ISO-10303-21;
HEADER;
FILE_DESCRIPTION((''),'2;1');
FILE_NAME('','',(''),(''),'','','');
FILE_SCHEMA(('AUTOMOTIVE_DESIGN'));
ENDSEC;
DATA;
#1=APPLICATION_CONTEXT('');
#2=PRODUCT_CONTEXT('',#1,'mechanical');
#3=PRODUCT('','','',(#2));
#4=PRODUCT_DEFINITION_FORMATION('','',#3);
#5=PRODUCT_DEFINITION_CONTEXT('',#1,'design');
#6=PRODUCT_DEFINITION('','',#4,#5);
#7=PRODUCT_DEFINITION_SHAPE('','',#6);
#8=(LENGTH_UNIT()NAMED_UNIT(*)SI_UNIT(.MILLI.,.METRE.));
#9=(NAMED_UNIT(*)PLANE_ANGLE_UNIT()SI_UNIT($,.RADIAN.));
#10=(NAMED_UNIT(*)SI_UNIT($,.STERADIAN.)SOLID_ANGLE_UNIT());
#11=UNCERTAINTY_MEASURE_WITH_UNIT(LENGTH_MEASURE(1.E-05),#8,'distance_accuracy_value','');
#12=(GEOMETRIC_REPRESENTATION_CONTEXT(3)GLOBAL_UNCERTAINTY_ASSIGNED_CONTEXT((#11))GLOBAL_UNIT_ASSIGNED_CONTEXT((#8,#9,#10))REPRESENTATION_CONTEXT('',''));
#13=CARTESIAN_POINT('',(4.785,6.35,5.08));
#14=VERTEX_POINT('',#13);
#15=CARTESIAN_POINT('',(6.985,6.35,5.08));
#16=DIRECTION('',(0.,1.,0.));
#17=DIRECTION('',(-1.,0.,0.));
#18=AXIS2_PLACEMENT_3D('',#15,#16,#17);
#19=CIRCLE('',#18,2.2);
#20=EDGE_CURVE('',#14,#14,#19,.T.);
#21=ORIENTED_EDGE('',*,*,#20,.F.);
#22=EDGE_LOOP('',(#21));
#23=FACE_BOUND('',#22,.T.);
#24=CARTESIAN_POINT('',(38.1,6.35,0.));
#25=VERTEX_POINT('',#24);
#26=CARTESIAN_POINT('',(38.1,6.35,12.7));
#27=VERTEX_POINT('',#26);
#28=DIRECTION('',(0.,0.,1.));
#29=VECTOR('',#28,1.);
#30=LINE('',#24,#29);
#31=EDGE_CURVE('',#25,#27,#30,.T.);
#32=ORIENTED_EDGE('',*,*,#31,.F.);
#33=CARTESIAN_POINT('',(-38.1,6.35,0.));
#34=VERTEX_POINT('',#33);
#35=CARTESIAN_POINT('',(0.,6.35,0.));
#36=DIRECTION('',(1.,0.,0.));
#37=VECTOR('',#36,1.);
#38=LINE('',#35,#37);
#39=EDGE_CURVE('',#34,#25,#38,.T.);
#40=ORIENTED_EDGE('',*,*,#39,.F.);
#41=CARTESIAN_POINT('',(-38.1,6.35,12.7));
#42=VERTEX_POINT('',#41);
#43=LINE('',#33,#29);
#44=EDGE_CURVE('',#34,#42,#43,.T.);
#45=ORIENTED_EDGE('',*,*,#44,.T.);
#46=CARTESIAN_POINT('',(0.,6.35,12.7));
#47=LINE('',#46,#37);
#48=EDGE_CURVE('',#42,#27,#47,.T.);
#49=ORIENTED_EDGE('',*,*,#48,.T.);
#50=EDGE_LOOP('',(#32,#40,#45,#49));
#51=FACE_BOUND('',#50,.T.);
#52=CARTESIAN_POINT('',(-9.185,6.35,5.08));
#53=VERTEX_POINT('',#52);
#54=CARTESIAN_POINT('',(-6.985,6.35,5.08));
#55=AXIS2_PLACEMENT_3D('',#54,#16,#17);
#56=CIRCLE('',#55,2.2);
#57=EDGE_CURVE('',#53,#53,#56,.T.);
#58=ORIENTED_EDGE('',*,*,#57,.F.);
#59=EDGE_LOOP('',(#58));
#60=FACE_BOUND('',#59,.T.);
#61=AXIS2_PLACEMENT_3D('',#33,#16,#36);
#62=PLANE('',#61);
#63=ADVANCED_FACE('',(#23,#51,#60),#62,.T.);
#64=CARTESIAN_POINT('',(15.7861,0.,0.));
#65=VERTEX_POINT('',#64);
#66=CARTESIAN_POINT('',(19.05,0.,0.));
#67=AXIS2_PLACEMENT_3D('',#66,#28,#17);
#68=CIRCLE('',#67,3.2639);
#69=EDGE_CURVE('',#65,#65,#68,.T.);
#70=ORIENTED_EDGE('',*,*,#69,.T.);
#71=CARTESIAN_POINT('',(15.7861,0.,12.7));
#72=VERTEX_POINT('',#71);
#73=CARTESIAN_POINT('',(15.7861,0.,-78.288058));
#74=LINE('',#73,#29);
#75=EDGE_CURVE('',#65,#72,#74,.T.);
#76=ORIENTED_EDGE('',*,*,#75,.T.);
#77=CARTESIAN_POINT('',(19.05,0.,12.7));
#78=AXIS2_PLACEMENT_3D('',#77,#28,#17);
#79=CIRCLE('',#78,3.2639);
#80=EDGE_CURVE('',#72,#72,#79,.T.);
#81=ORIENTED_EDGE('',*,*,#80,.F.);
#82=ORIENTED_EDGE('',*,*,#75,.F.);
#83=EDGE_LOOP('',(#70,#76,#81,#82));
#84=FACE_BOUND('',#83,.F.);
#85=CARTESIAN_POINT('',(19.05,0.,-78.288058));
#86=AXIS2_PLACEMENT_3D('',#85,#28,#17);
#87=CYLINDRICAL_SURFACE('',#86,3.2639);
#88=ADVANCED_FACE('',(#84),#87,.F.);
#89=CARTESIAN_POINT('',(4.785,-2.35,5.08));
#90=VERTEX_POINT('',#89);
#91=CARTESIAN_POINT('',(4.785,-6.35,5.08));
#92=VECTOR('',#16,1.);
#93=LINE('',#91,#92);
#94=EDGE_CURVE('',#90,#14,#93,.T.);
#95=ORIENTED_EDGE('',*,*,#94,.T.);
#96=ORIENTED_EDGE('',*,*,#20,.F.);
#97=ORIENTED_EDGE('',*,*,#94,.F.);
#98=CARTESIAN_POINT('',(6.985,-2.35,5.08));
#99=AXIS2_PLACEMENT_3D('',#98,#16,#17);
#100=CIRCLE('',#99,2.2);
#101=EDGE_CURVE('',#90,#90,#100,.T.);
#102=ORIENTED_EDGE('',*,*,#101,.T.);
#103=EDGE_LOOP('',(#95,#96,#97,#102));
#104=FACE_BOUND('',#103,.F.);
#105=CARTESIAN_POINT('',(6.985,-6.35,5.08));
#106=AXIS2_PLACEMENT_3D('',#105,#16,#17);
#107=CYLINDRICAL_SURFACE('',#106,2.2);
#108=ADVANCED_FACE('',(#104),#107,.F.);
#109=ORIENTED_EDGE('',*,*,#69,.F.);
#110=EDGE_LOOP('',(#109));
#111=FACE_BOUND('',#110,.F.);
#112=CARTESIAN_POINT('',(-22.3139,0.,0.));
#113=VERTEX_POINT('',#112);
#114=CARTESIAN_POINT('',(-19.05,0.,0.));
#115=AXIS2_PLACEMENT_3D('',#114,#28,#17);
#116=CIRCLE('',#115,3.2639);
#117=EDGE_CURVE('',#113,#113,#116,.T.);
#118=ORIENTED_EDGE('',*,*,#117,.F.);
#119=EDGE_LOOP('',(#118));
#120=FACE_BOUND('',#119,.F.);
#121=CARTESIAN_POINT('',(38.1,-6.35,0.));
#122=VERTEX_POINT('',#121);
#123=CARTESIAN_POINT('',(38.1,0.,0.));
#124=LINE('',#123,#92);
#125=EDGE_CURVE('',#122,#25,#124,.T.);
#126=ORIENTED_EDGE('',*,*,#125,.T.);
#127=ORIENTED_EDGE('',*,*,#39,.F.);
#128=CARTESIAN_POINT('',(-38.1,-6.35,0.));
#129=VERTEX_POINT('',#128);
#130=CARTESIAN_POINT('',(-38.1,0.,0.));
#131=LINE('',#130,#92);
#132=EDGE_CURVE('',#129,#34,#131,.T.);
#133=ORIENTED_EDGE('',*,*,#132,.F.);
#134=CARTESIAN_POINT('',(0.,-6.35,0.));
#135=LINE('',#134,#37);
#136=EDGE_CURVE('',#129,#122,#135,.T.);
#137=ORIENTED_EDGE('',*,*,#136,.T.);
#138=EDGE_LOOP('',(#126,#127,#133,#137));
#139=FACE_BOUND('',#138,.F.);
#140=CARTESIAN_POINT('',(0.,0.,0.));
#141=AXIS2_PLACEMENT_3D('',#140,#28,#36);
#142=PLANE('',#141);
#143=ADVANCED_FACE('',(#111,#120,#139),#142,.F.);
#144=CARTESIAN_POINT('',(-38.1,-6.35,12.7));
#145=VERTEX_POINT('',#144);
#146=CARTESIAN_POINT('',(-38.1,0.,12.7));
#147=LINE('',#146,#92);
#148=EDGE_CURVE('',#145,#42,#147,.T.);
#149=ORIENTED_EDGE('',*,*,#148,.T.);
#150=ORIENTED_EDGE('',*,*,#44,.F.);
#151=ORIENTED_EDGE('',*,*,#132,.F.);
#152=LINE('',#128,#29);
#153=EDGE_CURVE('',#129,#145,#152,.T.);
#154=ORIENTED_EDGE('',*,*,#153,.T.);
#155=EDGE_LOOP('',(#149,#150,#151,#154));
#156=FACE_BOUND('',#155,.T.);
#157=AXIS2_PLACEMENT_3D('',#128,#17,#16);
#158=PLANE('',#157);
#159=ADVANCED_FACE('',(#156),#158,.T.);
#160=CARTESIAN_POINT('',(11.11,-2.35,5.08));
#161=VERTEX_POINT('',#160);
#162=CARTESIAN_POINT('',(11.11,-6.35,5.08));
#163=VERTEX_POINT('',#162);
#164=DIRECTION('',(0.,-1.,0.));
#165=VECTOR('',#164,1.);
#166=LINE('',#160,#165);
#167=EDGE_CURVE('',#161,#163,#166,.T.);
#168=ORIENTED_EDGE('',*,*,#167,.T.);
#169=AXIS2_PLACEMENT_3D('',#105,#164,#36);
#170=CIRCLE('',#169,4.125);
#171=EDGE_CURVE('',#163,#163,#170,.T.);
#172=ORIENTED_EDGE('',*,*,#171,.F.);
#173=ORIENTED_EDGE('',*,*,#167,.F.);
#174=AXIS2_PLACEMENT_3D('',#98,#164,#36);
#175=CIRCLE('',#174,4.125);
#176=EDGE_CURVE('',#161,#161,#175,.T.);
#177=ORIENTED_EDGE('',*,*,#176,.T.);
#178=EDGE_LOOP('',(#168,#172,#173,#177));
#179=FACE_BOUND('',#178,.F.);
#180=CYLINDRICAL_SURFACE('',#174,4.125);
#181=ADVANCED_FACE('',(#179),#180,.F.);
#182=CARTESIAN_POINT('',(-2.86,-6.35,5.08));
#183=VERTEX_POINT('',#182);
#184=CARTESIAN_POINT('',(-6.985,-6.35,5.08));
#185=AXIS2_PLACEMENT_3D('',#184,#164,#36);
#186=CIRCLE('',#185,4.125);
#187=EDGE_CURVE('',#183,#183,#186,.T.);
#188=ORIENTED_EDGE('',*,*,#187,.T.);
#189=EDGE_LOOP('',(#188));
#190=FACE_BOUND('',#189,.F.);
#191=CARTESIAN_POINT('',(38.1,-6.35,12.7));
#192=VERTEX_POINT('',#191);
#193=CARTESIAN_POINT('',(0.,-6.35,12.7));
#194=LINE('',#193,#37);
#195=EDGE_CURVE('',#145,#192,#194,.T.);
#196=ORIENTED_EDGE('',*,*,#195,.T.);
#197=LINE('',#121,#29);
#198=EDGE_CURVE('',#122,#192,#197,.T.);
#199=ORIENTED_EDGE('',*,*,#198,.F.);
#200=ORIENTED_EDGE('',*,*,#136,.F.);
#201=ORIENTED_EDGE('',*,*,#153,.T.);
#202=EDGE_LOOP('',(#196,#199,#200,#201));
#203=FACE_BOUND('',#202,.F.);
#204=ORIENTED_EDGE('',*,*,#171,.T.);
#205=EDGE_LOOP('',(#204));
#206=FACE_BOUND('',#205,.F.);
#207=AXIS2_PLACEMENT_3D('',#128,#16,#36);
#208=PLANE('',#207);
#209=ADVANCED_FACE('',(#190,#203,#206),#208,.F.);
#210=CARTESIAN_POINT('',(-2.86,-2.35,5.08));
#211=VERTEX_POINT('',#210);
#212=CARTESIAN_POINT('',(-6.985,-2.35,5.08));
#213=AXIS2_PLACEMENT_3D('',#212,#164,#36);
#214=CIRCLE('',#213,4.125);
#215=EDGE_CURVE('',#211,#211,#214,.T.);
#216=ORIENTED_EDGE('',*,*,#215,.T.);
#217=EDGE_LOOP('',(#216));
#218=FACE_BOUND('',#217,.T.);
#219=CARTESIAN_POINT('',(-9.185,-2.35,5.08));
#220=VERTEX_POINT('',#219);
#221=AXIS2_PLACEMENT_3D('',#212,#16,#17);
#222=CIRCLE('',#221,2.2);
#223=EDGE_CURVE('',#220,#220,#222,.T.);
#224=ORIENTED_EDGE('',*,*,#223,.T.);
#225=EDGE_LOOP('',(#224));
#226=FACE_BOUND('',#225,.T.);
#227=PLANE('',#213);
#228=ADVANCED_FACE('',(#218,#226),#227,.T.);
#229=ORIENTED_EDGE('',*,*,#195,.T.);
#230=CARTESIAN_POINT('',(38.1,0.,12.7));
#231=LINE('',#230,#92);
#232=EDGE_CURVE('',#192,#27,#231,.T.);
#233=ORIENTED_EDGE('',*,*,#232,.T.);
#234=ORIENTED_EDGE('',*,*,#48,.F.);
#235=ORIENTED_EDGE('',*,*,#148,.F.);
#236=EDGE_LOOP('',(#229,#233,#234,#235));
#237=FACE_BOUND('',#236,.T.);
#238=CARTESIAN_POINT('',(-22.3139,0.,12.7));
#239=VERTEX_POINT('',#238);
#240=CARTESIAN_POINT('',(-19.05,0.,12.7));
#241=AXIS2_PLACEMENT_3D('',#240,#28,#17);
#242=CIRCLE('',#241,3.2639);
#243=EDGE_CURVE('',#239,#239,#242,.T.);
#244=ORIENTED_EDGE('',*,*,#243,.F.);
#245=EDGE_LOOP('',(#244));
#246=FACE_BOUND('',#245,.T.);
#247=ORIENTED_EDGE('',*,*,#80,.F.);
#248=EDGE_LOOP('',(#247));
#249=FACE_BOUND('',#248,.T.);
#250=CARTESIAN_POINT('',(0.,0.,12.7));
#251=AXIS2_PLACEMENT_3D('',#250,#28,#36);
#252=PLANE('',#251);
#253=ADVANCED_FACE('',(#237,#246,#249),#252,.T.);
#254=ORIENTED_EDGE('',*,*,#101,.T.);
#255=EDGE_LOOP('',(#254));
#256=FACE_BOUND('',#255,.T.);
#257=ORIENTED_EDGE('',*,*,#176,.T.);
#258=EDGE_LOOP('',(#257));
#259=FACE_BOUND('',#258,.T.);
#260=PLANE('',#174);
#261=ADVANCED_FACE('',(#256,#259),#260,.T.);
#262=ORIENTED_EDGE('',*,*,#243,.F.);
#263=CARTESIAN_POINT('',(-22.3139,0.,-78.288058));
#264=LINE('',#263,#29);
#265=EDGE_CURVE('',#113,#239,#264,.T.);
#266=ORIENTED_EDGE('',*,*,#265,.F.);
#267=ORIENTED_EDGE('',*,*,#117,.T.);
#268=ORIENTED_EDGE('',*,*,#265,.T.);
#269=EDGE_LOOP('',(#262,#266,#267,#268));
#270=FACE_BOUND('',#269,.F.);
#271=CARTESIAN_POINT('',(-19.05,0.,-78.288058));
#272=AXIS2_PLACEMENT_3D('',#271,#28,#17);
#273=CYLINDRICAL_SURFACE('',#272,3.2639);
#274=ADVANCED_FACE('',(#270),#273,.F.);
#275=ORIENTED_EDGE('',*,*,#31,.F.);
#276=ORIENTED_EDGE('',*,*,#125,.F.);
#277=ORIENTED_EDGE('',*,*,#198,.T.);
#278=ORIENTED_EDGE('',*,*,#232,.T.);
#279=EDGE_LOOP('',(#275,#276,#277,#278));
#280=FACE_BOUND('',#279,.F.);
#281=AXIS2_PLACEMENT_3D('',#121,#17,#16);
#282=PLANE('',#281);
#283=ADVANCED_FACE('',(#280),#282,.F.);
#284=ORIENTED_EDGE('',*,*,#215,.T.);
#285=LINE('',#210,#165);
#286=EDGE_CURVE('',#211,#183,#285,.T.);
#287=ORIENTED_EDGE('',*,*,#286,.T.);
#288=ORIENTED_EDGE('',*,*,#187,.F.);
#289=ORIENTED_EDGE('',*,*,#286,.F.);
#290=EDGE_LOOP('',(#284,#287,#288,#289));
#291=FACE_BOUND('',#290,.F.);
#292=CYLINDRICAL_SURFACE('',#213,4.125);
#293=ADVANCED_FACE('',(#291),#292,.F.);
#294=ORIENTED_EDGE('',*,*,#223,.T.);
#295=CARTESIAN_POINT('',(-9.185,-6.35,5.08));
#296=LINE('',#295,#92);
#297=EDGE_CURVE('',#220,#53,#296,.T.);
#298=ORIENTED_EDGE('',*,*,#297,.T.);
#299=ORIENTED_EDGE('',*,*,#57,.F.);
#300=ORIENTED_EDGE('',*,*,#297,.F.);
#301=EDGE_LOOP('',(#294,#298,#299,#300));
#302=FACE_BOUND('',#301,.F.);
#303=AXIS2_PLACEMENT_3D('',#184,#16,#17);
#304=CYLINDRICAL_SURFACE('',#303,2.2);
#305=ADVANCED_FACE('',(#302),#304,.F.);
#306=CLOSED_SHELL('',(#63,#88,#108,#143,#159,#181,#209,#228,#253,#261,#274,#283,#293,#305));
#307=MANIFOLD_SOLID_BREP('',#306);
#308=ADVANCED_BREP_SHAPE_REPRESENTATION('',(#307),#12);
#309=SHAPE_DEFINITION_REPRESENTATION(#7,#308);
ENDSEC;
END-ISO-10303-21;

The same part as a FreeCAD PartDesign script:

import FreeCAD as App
import Part
import Sketcher
from FreeCAD import Vector
Q = App.Units.Quantity

doc = App.newDocument("Part")
body = doc.addObject("PartDesign::Body", "Body")

# Sketch on XY plane
sketch1 = body.newObject("Sketcher::SketchObject", "Sketch")
sketch1.AttachmentSupport = (doc.getObject("XY_Plane"), [""])
sketch1.MapMode = "FlatFace"
sketch1.addGeometry([
    Part.LineSegment(Vector(-38.1, 6.35, 0), Vector(-38.1, -6.35, 0)),
    Part.LineSegment(Vector(-38.1, -6.35, 0), Vector(38.1, -6.35, 0)),
    Part.LineSegment(Vector(38.1, -6.35, 0), Vector(38.1, 6.35, 0)),
    Part.LineSegment(Vector(38.1, 6.35, 0), Vector(-38.1, 6.35, 0)),
], False)
sketch1.addConstraint([
    Sketcher.Constraint("Coincident", 0, 2, 1, 1),
    Sketcher.Constraint("Coincident", 1, 2, 2, 1),
    Sketcher.Constraint("Coincident", 2, 2, 3, 1),
    Sketcher.Constraint("Coincident", 3, 2, 0, 1),
    Sketcher.Constraint("Vertical", 0),
    Sketcher.Constraint("Horizontal", 1),
    Sketcher.Constraint("Vertical", 2),
    Sketcher.Constraint("Horizontal", 3),
    Sketcher.Constraint("Symmetric", 0, 2, 2, 2, -1, 1),
    Sketcher.Constraint("DistanceX", 1, 1, 1, 2, Q("3 in")),
    Sketcher.Constraint("DistanceY", 0, 2, 0, 1, Q("0.5 in")),
])
pad1 = body.newObject("PartDesign::Pad", "Pad")
pad1.Profile = sketch1
pad1.Length = Q("0.5 in")

# Sketch on XY plane
sketch2 = body.newObject("Sketcher::SketchObject", "Sketch001")
sketch2.AttachmentSupport = (doc.getObject("XY_Plane"), [""])
sketch2.MapMode = "FlatFace"
sketch2.addGeometry(Part.Circle(Vector(-19.05, 0, 0), Vector(0, 0, 1), 3.2639), False)
sketch2.addConstraint([
    Sketcher.Constraint("PointOnObject", 0, 3, -1),
    Sketcher.Constraint("Diameter", 0, Q("0.257 in")),
    Sketcher.Constraint("DistanceX", 0, 3, -1, 1, Q("0.75 in")),
])
doc.recompute()
hole = body.newObject("PartDesign::Hole", "Hole")
hole.Profile = sketch2
hole.ThreadType = "None"
hole.Diameter = Q("0.257 in")
hole.DepthType = "ThroughAll"
hole.Reversed = True

# Sketch on XY plane
sketch3 = body.newObject("Sketcher::SketchObject", "Sketch002")
sketch3.AttachmentSupport = (doc.getObject("XY_Plane"), [""])
sketch3.MapMode = "FlatFace"
sketch3.addGeometry(Part.Circle(Vector(19.05, 0, 0), Vector(0, 0, 1), 3.2639), False)
sketch3.addConstraint([
    Sketcher.Constraint("PointOnObject", 0, 3, -1),
    Sketcher.Constraint("Diameter", 0, Q("0.257 in")),
    Sketcher.Constraint("DistanceX", -1, 1, 0, 3, Q("0.75 in")),
])
doc.recompute()
hole2 = body.newObject("PartDesign::Hole", "Hole001")
hole2.Profile = sketch3
hole2.ThreadType = "None"
hole2.Diameter = Q("0.257 in")
hole2.DepthType = "ThroughAll"
hole2.Reversed = True

# Sketch on XZ plane
sketch4 = body.newObject("Sketcher::SketchObject", "Sketch003")
sketch4.AttachmentSupport = (doc.getObject("XZ_Plane"), [""])
sketch4.MapMode = "FlatFace"
sketch4.AttachmentOffset = App.Placement(Vector(0, 0, 0.25 * 25.4), App.Rotation())
sketch4.addGeometry(Part.Circle(Vector(-6.985, 5.08, 0), Vector(0, 0, 1), 2.2), False)
sketch4.addConstraint([
    Sketcher.Constraint("DistanceY", -1, 1, 0, 3, Q("0.2 in")),
    Sketcher.Constraint("Diameter", 0, Q("4.4 mm")),
    Sketcher.Constraint("DistanceX", 0, 3, -1, 1, Q("0.275 in")),
])
doc.recompute()
hole3 = body.newObject("PartDesign::Hole", "Hole002")
hole3.Profile = sketch4
hole3.ThreadType = "None"
hole3.Diameter = 4.4
hole3.DepthType = "ThroughAll"
hole3.HoleCutType = "Counterbore"
hole3.HoleCutDiameter = 8.25
hole3.HoleCutDepth = 4

# Sketch on XZ plane
sketch5 = body.newObject("Sketcher::SketchObject", "Sketch004")
sketch5.AttachmentSupport = (doc.getObject("XZ_Plane"), [""])
sketch5.MapMode = "FlatFace"
sketch5.AttachmentOffset = App.Placement(Vector(0, 0, 0.25 * 25.4), App.Rotation())
sketch5.addGeometry(Part.Circle(Vector(6.985, 5.08, 0), Vector(0, 0, 1), 2.2), False)
sketch5.addConstraint([
    Sketcher.Constraint("DistanceY", -1, 1, 0, 3, Q("0.2 in")),
    Sketcher.Constraint("Diameter", 0, Q("4.4 mm")),
    Sketcher.Constraint("DistanceX", -1, 1, 0, 3, Q("0.275 in")),
])
doc.recompute()
hole4 = body.newObject("PartDesign::Hole", "Hole003")
hole4.Profile = sketch5
hole4.ThreadType = "None"
hole4.Diameter = 4.4
hole4.DepthType = "ThroughAll"
hole4.HoleCutType = "Counterbore"
hole4.HoleCutDiameter = 8.25
hole4.HoleCutDepth = 4

doc.recompute()
